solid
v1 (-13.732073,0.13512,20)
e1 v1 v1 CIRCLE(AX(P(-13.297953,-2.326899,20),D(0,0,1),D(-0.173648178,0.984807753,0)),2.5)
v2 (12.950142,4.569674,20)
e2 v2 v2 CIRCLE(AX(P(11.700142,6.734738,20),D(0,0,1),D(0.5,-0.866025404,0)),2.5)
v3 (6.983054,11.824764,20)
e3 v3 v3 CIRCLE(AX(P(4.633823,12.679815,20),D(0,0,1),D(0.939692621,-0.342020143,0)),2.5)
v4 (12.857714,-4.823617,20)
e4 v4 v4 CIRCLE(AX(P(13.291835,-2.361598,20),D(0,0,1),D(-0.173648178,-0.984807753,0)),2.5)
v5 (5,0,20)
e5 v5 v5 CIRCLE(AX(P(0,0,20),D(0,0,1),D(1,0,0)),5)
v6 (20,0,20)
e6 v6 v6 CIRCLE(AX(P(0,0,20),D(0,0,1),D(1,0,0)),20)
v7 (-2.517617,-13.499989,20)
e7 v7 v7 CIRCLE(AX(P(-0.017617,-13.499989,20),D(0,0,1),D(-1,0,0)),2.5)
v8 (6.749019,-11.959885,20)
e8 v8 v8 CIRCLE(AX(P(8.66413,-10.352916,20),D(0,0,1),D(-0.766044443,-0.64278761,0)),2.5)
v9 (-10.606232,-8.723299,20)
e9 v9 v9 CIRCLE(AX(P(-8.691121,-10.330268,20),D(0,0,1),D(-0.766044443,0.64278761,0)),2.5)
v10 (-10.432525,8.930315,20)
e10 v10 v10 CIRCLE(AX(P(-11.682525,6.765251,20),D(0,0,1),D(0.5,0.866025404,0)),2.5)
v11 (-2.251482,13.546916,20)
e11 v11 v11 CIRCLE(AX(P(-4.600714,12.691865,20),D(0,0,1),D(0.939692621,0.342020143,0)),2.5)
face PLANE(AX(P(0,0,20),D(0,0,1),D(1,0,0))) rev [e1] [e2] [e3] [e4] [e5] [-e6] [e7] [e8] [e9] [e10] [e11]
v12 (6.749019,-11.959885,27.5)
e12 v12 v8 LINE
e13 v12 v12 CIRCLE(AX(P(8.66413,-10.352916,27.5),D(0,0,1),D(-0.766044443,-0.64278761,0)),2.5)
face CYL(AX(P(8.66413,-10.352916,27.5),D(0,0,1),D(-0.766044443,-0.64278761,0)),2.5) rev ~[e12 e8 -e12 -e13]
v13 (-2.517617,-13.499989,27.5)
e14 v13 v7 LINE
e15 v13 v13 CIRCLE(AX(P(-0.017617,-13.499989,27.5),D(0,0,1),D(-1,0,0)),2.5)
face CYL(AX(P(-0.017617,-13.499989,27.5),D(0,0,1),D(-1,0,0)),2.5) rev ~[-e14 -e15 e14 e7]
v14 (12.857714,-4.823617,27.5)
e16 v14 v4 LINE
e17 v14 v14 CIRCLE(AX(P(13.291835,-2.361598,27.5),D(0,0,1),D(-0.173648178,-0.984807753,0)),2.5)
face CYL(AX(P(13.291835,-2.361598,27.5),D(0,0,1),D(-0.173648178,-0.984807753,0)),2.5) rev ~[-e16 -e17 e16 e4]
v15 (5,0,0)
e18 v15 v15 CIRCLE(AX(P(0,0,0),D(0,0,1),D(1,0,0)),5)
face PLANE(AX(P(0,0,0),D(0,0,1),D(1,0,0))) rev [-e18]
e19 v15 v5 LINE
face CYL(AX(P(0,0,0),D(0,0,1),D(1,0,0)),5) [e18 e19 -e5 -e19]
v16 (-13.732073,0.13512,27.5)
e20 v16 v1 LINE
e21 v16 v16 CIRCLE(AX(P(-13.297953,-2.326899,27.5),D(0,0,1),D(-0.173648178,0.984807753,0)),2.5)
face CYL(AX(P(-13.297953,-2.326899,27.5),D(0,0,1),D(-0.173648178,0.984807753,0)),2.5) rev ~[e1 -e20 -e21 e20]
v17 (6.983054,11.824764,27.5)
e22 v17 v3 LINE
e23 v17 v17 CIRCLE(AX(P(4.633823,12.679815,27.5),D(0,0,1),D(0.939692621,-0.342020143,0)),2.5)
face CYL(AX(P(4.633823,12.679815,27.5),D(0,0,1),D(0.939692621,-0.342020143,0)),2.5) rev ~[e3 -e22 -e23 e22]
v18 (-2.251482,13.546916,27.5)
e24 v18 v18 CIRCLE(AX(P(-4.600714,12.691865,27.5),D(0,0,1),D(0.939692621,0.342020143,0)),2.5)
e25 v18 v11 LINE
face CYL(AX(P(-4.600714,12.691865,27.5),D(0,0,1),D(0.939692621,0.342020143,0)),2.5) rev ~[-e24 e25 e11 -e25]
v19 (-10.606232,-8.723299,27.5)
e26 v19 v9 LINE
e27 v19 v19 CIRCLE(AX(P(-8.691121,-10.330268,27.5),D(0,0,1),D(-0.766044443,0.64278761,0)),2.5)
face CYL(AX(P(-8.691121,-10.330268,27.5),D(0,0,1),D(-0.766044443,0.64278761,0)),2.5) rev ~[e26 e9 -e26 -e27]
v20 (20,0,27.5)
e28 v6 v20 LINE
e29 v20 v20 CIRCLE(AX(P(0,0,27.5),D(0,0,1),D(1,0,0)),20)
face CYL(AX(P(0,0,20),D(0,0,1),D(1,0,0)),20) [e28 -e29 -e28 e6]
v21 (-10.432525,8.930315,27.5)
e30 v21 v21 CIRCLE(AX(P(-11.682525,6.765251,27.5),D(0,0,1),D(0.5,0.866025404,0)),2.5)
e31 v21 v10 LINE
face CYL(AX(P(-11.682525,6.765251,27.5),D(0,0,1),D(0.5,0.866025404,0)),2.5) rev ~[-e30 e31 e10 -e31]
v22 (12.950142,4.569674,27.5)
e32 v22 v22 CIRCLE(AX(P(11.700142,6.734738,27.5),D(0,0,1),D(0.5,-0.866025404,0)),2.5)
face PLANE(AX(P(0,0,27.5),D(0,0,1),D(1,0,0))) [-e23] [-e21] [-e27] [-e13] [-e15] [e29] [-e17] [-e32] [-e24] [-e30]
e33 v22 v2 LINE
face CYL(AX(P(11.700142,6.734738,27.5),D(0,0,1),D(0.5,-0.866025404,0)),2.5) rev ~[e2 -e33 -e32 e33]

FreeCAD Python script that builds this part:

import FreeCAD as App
import Part
import Sketcher


def add_polygon(sketch, points):
    """Adds a closed chain of lines whose ends are joined by coincident constraints."""
    first, n = sketch.GeometryCount, len(points)
    for a, b in zip(points, points[1:] + points[:1]):
        sketch.addGeometry(Part.LineSegment(App.Vector(*a, 0), App.Vector(*b, 0)), False)
    for i in range(n):
        sketch.addConstraint(Sketcher.Constraint("Coincident", first + i, 2, first + (i + 1) % n, 1))

doc = App.newDocument("Part")
body = doc.addObject("PartDesign::Body", "Body")

sketch1 = body.newObject("Sketcher::SketchObject", "Sketch")
sketch1.AttachmentSupport = (doc.getObject("XZ_Plane"), [""])
sketch1.MapMode = "FlatFace"
add_polygon(sketch1, [(0, 0), (5, 0), (5, 20), (20, 20), (20, 27.5), (0, 27.5)])
sketch1.addConstraint([
    Sketcher.Constraint("Horizontal", 0),
    Sketcher.Constraint("Vertical", 1),
    Sketcher.Constraint("Horizontal", 2),
    Sketcher.Constraint("Vertical", 3),
    Sketcher.Constraint("Horizontal", 4),
    Sketcher.Constraint("Vertical", 5),
    Sketcher.Constraint("Coincident", 5, 2, -1, 1),
    Sketcher.Constraint("Equal", 4, 1),
    Sketcher.Constraint("DistanceX", 0, 1, 0, 2, 5.0),
    Sketcher.Constraint("DistanceX", 2, 1, 2, 2, 15.0),
    Sketcher.Constraint("DistanceY", 3, 1, 3, 2, 7.5),
])
revolution = body.newObject("PartDesign::Revolution", "Revolution")
revolution.Profile = sketch1
revolution.ReferenceAxis = (sketch1, ["V_Axis"])
revolution.Angle = 360

sketch2 = body.newObject("Sketcher::SketchObject", "Sketch001")
sketch2.AttachmentSupport = (doc.getObject("XY_Plane"), [""])
sketch2.MapMode = "FlatFace"
sketch2.AttachmentOffset = App.Placement(App.Vector(0, 0, 27.5), App.Rotation())
sketch2.addGeometry(Part.Circle(App.Vector(-0.017617, -13.499989, 0), App.Vector(0, 0, 1), 2.5), False)
sketch2.addConstraint([
    Sketcher.Constraint("Diameter", 0, 5.0),
    Sketcher.Constraint("DistanceY", 0, 3, -1, 1, 13.499989),
    Sketcher.Constraint("DistanceX", 0, 3, -1, 1, 0.017617),
])
pocket1 = body.newObject("PartDesign::Pocket", "Pocket")
pocket1.Profile = sketch2
pocket1.Length = 7.5
doc.recompute()

polarpattern = body.newObject("PartDesign::PolarPattern", "PolarPattern")
polarpattern.Originals = [pocket1]
polarpattern.Axis = (doc.getObject("Z_Axis"), [""])
polarpattern.Angle = 360
polarpattern.Occurrences = 9
body.Tip = polarpattern

doc.recompute()
